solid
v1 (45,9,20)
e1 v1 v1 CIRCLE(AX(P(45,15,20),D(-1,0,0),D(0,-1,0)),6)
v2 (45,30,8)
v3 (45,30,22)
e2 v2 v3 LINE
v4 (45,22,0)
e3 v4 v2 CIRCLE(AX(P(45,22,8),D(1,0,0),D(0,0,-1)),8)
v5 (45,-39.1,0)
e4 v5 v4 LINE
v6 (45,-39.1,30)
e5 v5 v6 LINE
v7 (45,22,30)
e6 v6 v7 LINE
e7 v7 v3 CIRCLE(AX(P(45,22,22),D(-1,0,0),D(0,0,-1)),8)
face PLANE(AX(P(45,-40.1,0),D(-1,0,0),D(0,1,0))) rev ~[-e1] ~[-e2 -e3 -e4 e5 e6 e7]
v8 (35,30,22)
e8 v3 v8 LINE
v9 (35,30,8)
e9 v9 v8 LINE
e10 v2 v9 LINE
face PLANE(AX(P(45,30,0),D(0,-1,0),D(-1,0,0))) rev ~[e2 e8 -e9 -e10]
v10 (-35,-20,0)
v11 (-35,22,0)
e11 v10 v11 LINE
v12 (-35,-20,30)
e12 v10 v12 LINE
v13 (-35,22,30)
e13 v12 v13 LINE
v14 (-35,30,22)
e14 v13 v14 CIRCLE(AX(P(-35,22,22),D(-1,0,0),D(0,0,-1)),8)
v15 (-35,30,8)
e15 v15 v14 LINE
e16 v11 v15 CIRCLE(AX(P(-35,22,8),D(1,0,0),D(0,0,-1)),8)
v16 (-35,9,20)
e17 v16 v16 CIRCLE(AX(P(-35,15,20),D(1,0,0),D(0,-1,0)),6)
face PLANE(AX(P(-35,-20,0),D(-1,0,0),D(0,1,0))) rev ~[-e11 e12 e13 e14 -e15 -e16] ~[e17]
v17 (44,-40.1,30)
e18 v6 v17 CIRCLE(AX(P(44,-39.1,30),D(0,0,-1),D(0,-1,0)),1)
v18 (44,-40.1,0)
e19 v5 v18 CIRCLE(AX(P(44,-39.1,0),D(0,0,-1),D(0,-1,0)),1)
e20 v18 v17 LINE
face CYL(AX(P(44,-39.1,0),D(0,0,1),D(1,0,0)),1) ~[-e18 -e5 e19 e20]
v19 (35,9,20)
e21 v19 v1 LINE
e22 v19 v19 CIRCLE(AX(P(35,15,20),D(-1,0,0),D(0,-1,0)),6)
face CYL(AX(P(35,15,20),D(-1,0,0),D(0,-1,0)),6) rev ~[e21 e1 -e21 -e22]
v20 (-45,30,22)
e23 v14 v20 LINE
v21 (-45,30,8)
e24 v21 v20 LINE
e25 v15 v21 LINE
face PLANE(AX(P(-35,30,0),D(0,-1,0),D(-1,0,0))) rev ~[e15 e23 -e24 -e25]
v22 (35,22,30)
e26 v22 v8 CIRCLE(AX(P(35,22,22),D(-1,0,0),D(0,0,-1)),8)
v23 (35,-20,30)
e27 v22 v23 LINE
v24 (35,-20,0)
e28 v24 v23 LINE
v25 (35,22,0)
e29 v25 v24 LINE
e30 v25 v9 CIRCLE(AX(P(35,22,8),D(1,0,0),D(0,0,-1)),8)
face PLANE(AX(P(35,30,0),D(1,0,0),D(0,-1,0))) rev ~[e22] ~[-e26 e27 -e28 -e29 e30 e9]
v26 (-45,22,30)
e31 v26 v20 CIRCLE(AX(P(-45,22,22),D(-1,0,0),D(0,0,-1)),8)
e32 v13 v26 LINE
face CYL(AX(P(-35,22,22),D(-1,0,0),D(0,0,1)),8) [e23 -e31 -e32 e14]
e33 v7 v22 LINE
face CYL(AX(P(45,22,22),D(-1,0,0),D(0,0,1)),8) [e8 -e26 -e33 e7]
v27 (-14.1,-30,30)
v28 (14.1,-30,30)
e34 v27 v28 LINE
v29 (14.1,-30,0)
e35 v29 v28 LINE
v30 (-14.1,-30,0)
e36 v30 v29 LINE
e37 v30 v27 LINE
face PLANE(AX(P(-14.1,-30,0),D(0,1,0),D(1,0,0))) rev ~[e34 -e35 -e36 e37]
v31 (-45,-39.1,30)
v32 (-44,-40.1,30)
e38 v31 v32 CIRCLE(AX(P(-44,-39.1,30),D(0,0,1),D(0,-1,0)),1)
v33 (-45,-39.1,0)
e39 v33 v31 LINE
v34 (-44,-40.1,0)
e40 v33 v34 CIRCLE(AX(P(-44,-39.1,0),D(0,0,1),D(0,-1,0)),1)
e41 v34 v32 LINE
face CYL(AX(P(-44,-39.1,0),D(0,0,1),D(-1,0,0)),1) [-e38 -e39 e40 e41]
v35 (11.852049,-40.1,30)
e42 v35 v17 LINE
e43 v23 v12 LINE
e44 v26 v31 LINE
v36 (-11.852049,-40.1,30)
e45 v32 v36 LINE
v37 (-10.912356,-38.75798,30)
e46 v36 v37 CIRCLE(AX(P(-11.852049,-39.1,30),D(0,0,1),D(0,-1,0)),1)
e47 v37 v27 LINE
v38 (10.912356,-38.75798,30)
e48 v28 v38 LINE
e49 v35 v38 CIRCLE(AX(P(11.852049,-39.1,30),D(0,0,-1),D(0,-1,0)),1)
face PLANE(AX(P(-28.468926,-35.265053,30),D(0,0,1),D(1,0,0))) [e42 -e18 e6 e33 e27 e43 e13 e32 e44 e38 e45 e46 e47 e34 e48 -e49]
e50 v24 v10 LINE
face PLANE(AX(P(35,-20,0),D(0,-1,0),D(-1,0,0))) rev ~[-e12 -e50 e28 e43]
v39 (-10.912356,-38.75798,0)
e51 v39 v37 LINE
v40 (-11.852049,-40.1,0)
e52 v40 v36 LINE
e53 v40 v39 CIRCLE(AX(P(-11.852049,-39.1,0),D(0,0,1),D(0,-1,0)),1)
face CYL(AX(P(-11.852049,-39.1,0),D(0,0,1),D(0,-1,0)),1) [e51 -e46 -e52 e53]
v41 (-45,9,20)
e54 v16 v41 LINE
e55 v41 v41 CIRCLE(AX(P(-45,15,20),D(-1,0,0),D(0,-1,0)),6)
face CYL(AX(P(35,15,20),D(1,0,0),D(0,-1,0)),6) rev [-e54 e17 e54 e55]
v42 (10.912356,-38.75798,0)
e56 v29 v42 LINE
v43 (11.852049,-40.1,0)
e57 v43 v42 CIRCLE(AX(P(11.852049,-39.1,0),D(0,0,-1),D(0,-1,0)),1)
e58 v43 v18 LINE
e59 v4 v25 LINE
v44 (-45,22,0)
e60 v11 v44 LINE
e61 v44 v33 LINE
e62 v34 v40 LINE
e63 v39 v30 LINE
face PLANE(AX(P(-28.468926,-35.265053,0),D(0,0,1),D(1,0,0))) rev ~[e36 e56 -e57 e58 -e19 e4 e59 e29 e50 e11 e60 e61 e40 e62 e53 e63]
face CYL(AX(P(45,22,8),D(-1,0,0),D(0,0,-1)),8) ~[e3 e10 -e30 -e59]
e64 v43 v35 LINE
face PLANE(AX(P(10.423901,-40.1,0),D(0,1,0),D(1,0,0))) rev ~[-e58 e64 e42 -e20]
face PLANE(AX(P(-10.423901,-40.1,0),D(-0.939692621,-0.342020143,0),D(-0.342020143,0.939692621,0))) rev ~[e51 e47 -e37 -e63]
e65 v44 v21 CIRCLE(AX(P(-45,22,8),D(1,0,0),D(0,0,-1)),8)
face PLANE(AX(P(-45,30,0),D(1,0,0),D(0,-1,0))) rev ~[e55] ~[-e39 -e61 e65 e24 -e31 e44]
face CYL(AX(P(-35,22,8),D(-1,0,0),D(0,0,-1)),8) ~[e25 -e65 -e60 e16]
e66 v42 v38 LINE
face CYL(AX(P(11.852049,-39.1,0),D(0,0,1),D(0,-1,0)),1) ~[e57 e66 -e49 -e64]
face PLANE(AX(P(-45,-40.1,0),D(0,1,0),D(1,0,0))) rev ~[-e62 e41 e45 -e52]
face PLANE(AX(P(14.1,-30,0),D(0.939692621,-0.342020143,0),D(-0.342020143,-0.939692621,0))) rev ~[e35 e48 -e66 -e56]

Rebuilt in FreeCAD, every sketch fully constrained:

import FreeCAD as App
import Part
import Sketcher
Q = App.Units.Quantity


def edges_at(feature, points):
    """Names of the edges that pass closest to the given points."""
    edges = feature.Shape.Edges
    near = lambda p: min(range(len(edges)), key=lambda i: edges[i].distToShape(Part.Vertex(*p))[0])
    return sorted({f"Edge{near(p) + 1}" for p in points})

doc = App.newDocument("Part")
body = doc.addObject("PartDesign::Body", "Body")

sketch1 = body.newObject("Sketcher::SketchObject", "Sketch")
sketch1.AttachmentSupport = (doc.getObject("XY_Plane"), [""])
sketch1.MapMode = "FlatFace"
sketch1.addGeometry([
    Part.LineSegment(App.Vector(-45, -40.1, 0), App.Vector(-10.423901, -40.1, 0)),
    Part.LineSegment(App.Vector(-10.423901, -40.1, 0), App.Vector(-14.1, -30, 0)),
    Part.LineSegment(App.Vector(-14.1, -30, 0), App.Vector(14.1, -30, 0)),
    Part.LineSegment(App.Vector(14.1, -30, 0), App.Vector(10.423901, -40.1, 0)),
    Part.LineSegment(App.Vector(10.423901, -40.1, 0), App.Vector(45, -40.1, 0)),
    Part.LineSegment(App.Vector(45, -40.1, 0), App.Vector(45, 30, 0)),
    Part.LineSegment(App.Vector(45, 30, 0), App.Vector(35, 30, 0)),
    Part.LineSegment(App.Vector(35, 30, 0), App.Vector(35, -20, 0)),
    Part.LineSegment(App.Vector(35, -20, 0), App.Vector(-35, -20, 0)),
    Part.LineSegment(App.Vector(-35, -20, 0), App.Vector(-35, 30, 0)),
    Part.LineSegment(App.Vector(-35, 30, 0), App.Vector(-45, 30, 0)),
    Part.LineSegment(App.Vector(-45, 30, 0), App.Vector(-45, -40.1, 0)),
], False)
sketch1.addConstraint([
    Sketcher.Constraint("Coincident", 0, 2, 1, 1),
    Sketcher.Constraint("Coincident", 1, 2, 2, 1),
    Sketcher.Constraint("Coincident", 2, 2, 3, 1),
    Sketcher.Constraint("Coincident", 3, 2, 4, 1),
    Sketcher.Constraint("Coincident", 4, 2, 5, 1),
    Sketcher.Constraint("Coincident", 5, 2, 6, 1),
    Sketcher.Constraint("Coincident", 6, 2, 7, 1),
    Sketcher.Constraint("Coincident", 7, 2, 8, 1),
    Sketcher.Constraint("Coincident", 8, 2, 9, 1),
    Sketcher.Constraint("Coincident", 9, 2, 10, 1),
    Sketcher.Constraint("Coincident", 10, 2, 11, 1),
    Sketcher.Constraint("Coincident", 11, 2, 0, 1),
    Sketcher.Constraint("Horizontal", 0),
    Sketcher.Constraint("Horizontal", 2),
    Sketcher.Constraint("Horizontal", 4),
    Sketcher.Constraint("Vertical", 5),
    Sketcher.Constraint("Horizontal", 6),
    Sketcher.Constraint("Vertical", 7),
    Sketcher.Constraint("Horizontal", 8),
    Sketcher.Constraint("Vertical", 9),
    Sketcher.Constraint("Horizontal", 10),
    Sketcher.Constraint("Vertical", 11),
    Sketcher.Constraint("Symmetric", 0, 2, 3, 2, -2),
    Sketcher.Constraint("Symmetric", 6, 2, 9, 2, -2),
    Sketcher.Constraint("Equal", 0, 4),
    Sketcher.Constraint("Equal", 1, 3),
    Sketcher.Constraint("DistanceX", 6, 2, 6, 1, Q("10 mm")),
    Sketcher.Constraint("DistanceX", 8, 2, 8, 1, Q("70 mm")),
    Sketcher.Constraint("DistanceY", 7, 2, 7, 1, Q("50 mm")),
    Sketcher.Constraint("Angle", 1, Q("110 deg")),
    Sketcher.Constraint("DistanceX", 2, 1, 2, 2, Q("28.2 mm")),
    Sketcher.Constraint("DistanceY", 5, 1, 5, 2, Q("70.1 mm")),
    Sketcher.Constraint("DistanceY", 1, 2, -1, 1, Q("30 mm")),
    Sketcher.Constraint("DistanceY", -1, 1, 5, 2, Q("30 mm")),
])
pad1 = body.newObject("PartDesign::Pad", "Pad")
pad1.Profile = sketch1
pad1.Length = 30

sketch2 = body.newObject("Sketcher::SketchObject", "Sketch001")
sketch2.AttachmentSupport = (doc.getObject("YZ_Plane"), [""])
sketch2.MapMode = "FlatFace"
sketch2.AttachmentOffset = App.Placement(App.Vector(0, 0, 35), App.Rotation())
sketch2.addGeometry(Part.Circle(App.Vector(15, 20, 0), App.Vector(0, 0, 1), 6), False)
sketch2.addConstraint([
    Sketcher.Constraint("Diameter", 0, Q("12 mm")),
    Sketcher.Constraint("DistanceX", -1, 1, 0, 3, Q("15 mm")),
    Sketcher.Constraint("DistanceY", -1, 1, 0, 3, Q("20 mm")),
])
pocket1 = body.newObject("PartDesign::Pocket", "Pocket")
pocket1.Profile = sketch2
pocket1.Type = "ThroughAll"
pocket1.Midplane = True
doc.recompute()

fillet = body.newObject("PartDesign::Fillet", "Fillet")
fillet.Base = (pocket1, edges_at(pocket1, [
    (40, 30, 30),
    (40, 30, 0),
    (-40, 30, 30),
    (-40, 30, 0),
]))
fillet.Radius = 8
doc.recompute()

fillet2 = body.newObject("PartDesign::Fillet", "Fillet001")
fillet2.Base = (fillet, edges_at(fillet, [
    (-10.424, -40.1, 15),
    (10.424, -40.1, 15),
    (45, -40.1, 15),
    (-45, -40.1, 15),
]))
fillet2.Radius = 1

doc.recompute()
